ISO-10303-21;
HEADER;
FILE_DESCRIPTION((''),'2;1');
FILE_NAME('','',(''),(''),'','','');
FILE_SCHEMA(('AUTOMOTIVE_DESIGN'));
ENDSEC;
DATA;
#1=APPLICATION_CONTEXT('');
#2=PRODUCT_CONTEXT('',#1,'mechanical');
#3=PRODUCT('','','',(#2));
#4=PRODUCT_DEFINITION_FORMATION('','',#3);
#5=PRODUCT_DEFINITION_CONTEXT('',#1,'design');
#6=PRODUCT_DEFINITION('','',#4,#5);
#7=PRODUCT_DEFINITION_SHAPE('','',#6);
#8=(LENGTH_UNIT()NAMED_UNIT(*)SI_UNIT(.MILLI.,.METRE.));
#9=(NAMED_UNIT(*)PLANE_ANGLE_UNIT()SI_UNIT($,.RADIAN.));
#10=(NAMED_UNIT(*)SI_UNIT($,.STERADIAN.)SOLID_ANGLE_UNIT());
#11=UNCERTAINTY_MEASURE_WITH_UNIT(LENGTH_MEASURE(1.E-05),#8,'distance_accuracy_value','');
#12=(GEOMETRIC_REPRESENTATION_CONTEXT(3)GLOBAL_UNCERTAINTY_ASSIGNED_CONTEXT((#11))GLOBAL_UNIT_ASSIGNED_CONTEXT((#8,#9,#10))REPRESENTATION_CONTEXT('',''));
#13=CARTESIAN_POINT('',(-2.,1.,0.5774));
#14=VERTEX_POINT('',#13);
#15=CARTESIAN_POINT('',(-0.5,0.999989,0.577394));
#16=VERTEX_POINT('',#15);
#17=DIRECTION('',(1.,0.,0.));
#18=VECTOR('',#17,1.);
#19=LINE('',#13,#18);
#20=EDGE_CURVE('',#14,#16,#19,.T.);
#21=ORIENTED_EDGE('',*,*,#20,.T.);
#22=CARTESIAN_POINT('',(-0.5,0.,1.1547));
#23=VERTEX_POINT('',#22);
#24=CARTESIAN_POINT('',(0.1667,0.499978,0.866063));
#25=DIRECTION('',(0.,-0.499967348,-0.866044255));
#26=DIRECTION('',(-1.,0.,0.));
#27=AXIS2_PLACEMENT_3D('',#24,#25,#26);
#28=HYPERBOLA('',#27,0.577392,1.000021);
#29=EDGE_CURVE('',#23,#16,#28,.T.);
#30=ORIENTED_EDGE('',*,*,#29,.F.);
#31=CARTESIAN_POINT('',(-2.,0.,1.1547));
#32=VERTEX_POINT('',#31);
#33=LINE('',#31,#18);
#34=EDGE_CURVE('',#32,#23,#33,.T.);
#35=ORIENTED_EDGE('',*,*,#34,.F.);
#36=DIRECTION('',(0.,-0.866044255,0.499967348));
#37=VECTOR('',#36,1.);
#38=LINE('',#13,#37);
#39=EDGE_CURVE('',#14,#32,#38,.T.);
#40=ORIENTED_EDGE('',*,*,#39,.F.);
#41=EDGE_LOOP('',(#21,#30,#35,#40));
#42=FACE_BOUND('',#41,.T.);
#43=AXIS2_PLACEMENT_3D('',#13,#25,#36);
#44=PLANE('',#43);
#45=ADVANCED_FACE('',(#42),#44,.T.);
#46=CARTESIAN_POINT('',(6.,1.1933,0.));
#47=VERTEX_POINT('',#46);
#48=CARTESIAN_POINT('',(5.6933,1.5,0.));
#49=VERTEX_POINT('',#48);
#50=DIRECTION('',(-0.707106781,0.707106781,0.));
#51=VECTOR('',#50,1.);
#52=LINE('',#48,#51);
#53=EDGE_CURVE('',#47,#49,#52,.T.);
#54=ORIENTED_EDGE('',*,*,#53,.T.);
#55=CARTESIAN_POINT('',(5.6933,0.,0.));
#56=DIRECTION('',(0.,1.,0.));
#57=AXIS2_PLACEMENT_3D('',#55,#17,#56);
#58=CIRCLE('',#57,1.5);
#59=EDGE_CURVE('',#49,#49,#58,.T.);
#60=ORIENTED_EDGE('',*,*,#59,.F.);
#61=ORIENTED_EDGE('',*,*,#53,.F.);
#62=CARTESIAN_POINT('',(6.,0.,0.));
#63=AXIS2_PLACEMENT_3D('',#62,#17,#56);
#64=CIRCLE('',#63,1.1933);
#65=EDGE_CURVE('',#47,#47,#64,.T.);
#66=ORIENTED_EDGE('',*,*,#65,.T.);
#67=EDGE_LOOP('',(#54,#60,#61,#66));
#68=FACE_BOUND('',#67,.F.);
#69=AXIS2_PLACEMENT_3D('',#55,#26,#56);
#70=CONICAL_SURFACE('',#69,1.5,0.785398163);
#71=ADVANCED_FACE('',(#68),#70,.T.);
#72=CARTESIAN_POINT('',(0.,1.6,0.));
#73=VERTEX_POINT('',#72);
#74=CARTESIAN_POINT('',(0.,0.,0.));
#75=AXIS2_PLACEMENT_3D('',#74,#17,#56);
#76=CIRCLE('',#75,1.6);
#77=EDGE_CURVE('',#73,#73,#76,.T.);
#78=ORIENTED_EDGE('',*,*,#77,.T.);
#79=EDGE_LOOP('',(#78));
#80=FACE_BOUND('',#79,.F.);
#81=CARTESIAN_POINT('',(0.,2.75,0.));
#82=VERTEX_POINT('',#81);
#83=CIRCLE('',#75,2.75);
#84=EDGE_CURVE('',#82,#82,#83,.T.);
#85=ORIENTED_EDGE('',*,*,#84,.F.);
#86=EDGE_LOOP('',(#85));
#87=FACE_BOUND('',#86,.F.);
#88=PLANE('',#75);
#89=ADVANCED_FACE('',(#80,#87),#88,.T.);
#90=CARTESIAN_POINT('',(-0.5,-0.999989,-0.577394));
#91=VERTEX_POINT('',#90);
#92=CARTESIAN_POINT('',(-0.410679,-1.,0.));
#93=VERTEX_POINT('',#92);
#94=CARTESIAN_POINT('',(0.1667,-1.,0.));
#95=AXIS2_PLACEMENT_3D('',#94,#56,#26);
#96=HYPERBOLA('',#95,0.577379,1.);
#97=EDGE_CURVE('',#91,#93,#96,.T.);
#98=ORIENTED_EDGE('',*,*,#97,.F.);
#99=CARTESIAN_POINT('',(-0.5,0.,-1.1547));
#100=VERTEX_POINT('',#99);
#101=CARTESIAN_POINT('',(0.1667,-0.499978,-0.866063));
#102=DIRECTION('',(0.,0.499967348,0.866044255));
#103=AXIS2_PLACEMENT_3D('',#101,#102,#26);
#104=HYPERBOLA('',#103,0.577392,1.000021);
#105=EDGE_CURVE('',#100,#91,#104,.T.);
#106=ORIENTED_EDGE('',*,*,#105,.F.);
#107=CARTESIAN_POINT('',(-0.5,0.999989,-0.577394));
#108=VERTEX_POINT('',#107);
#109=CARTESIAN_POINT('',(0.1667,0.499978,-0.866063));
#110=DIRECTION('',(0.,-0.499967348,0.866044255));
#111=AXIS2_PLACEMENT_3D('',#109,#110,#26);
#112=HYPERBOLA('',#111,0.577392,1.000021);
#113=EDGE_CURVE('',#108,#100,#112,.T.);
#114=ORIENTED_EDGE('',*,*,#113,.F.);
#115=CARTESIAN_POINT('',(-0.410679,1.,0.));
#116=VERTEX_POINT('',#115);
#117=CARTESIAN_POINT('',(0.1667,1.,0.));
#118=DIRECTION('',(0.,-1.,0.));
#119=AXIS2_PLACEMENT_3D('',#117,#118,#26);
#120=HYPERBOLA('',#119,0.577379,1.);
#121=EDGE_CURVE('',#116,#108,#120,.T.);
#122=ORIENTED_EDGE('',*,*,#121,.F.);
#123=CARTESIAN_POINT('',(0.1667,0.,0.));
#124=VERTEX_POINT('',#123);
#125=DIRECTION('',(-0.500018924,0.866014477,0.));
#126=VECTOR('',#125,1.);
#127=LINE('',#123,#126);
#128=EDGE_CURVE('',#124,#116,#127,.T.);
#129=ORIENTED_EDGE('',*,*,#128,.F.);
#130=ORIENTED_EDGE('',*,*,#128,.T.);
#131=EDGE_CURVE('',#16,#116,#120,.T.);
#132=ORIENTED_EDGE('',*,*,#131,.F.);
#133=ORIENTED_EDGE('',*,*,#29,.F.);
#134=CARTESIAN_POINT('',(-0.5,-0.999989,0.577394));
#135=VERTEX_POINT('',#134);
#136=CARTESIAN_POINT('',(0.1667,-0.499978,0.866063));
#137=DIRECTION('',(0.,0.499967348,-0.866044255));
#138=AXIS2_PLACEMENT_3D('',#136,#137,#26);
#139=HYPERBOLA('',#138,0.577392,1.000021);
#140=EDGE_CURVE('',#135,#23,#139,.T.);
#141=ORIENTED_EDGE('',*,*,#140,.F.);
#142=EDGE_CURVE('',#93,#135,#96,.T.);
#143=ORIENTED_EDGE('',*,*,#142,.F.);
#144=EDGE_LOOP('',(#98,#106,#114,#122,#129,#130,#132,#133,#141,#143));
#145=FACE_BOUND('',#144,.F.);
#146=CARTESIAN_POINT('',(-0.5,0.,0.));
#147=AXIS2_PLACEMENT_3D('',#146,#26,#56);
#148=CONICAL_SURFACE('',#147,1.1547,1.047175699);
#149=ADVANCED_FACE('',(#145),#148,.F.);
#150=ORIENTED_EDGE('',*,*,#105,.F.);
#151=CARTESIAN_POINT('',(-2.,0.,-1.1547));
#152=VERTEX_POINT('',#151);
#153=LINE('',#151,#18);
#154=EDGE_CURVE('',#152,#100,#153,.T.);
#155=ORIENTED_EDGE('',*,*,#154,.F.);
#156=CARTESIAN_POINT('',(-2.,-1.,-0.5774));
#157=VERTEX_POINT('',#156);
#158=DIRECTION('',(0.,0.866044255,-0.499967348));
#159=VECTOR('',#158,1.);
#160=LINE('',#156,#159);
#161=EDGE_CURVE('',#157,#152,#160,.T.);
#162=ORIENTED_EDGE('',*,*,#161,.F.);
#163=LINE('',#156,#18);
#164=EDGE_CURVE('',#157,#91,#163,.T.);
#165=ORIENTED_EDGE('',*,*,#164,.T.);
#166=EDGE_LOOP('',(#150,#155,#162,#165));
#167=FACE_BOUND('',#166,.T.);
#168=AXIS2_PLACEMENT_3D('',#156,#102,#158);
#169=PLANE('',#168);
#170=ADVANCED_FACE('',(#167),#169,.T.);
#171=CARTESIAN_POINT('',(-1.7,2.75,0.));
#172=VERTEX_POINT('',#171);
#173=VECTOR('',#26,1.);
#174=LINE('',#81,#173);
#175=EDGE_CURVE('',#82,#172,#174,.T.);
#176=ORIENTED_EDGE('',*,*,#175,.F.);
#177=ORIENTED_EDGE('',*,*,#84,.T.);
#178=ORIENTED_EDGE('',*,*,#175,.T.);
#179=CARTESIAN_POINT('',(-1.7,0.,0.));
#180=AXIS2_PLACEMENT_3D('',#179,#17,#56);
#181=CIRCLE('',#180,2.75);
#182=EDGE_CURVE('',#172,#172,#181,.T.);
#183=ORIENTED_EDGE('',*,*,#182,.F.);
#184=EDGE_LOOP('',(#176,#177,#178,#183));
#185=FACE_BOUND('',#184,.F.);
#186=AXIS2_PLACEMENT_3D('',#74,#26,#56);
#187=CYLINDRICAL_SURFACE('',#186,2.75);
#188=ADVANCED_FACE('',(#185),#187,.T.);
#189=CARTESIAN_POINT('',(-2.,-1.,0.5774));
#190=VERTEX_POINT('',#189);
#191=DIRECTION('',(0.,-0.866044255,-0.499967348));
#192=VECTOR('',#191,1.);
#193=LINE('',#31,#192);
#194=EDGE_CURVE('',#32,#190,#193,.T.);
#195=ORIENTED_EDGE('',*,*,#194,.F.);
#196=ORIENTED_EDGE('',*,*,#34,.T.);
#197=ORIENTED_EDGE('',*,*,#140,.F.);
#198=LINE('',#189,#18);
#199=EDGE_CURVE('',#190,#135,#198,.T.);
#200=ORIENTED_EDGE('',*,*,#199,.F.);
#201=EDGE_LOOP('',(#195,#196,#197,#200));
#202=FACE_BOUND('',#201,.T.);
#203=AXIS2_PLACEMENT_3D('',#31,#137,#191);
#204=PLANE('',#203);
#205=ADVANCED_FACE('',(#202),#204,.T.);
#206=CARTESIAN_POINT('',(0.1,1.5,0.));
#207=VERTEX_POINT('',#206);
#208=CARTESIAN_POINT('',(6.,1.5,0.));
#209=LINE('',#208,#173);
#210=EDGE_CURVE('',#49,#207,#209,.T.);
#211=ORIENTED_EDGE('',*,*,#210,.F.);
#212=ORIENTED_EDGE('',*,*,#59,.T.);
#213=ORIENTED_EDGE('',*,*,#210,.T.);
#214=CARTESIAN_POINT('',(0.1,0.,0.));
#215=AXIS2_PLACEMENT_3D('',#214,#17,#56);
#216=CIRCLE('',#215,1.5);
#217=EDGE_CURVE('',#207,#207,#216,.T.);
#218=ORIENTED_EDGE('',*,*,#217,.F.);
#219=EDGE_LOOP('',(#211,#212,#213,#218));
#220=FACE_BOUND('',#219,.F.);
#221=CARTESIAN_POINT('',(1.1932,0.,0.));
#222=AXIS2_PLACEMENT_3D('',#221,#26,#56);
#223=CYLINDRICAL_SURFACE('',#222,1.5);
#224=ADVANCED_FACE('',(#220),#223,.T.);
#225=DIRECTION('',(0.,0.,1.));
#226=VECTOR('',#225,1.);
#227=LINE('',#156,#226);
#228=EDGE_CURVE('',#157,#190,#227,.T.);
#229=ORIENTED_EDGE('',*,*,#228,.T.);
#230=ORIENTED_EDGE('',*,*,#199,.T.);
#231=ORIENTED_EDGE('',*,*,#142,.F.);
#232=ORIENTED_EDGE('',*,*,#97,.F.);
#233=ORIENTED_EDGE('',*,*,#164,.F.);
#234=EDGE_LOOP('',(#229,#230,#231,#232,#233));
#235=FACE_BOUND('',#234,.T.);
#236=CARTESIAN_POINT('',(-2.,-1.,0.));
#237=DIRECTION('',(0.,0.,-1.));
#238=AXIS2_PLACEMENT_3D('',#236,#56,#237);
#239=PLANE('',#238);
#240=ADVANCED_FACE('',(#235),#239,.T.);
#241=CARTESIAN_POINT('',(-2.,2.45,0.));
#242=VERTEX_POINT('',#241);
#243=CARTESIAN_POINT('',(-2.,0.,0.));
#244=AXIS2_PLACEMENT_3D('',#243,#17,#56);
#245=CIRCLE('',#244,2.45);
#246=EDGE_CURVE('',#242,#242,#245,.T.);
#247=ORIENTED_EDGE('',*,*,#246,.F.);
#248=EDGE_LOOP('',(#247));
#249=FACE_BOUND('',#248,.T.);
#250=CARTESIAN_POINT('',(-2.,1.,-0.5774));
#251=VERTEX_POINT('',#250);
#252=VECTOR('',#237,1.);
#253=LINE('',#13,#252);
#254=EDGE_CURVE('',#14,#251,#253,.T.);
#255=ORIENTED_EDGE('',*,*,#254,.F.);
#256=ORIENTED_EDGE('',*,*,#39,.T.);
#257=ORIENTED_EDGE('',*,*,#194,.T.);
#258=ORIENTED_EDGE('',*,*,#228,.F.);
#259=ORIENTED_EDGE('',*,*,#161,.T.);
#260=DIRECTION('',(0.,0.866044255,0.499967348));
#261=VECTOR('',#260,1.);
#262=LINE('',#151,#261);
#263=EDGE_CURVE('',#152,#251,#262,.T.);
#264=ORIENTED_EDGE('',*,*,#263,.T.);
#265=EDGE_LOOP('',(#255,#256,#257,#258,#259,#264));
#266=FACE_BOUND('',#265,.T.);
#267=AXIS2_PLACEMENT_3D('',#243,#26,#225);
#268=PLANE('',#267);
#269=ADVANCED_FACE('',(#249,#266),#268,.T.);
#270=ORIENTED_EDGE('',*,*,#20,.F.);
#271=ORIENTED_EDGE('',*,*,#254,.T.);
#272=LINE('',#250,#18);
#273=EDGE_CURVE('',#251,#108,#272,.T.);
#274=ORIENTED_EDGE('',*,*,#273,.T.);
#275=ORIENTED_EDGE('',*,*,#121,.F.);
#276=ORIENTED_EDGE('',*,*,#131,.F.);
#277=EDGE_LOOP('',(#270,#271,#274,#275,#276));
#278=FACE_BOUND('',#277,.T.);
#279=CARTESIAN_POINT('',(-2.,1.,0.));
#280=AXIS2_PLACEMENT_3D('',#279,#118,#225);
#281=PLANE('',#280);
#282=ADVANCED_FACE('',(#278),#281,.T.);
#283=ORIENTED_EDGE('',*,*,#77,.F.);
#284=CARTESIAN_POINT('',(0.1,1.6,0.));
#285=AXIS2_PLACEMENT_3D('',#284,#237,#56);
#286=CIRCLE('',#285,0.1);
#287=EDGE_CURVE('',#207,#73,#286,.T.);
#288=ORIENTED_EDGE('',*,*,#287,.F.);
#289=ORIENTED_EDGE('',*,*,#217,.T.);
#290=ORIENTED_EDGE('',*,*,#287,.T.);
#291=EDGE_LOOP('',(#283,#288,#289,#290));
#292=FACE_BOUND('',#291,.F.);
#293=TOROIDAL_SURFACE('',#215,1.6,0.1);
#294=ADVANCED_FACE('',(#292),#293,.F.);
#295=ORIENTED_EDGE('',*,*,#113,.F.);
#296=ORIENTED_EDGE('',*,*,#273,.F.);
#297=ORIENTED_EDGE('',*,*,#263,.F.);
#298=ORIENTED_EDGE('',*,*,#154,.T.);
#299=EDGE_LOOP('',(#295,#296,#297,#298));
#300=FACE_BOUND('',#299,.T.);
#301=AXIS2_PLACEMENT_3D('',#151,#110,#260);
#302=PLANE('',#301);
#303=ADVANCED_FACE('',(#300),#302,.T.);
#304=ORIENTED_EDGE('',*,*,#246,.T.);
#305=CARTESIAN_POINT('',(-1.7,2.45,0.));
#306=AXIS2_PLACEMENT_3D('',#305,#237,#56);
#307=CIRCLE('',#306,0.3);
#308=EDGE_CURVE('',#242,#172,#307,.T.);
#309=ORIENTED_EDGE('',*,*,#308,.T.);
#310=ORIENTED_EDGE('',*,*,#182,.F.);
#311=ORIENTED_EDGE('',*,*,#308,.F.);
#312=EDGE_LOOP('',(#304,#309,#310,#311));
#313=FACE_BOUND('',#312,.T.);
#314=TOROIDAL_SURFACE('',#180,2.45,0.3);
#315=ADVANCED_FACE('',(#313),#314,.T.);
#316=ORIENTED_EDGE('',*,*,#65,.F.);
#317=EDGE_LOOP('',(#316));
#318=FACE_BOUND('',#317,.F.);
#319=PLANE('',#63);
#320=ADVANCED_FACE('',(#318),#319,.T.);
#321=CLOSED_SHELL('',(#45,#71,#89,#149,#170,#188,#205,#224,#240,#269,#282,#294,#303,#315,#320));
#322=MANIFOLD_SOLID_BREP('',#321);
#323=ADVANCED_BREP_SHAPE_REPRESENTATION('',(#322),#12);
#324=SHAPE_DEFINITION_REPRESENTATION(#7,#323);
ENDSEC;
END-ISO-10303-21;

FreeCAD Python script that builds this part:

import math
import FreeCAD as App
import Part
import Sketcher

V = App.Vector


def edges_at(feature, points):
    """Names of the edges that pass closest to the given points."""
    edges = feature.Shape.Edges
    near = lambda p: min(range(len(edges)), key=lambda i: edges[i].distToShape(Part.Vertex(*p))[0])
    return sorted({f"Edge{near(p) + 1}" for p in points})


def add_polygon(sketch, points):
    """Adds a closed chain of lines whose ends are joined by coincident constraints."""
    first, n = sketch.GeometryCount, len(points)
    for a, b in zip(points, points[1:] + points[:1]):
        sketch.addGeometry(Part.LineSegment(App.Vector(*a, 0), App.Vector(*b, 0)), False)
    for i in range(n):
        sketch.addConstraint(Sketcher.Constraint("Coincident", first + i, 2, first + (i + 1) % n, 1))

doc = App.newDocument("Part")
body = doc.addObject("PartDesign::Body", "Body")

sketch1 = body.newObject("Sketcher::SketchObject", "Sketch")
sketch1.AttachmentSupport = (doc.getObject("XY_Plane"), [""])
sketch1.MapMode = "FlatFace"
add_polygon(sketch1, [(0.2, 0), (6, 0), (6, 1.5), (0, 1.5), (0, 2.8), (-2, 2.8), (-2, 1.2), (-0.5, 1.2)])
sketch1.addConstraint([
    Sketcher.Constraint("Horizontal", 0),
    Sketcher.Constraint("Vertical", 1),
    Sketcher.Constraint("Horizontal", 2),
    Sketcher.Constraint("Vertical", 3),
    Sketcher.Constraint("Horizontal", 4),
    Sketcher.Constraint("Vertical", 5),
    Sketcher.Constraint("Horizontal", 6),
    Sketcher.Constraint("PointOnObject", 0, 2, -1),
    Sketcher.Constraint("PointOnObject", 2, 2, -2),
    Sketcher.Constraint("Equal", 6, 1),
    Sketcher.Constraint("DistanceX", 2, 2, 2, 1, 6.0),
    Sketcher.Constraint("DistanceX", 4, 2, 4, 1, 2.0),
    Sketcher.Constraint("DistanceX", 6, 1, 6, 2, 1.5),
    Sketcher.Constraint("DistanceY", 3, 1, 3, 2, 1.25),
    Sketcher.Constraint("DistanceX", 0, 1, 0, 2, 5.8333),
    Sketcher.Constraint("DistanceY", 5, 2, 5, 1, 1.5953),
])
revolution = body.newObject("PartDesign::Revolution", "Revolution")
revolution.Profile = sketch1
revolution.ReferenceAxis = (sketch1, ["H_Axis"])
revolution.Angle = 360

sketch2 = body.newObject("Sketcher::SketchObject", "Sketch001")
sketch2.AttachmentSupport = (doc.getObject("YZ_Plane"), [""])
sketch2.MapMode = "FlatFace"
sketch2.AttachmentOffset = App.Placement(V(0, 0, -2), App.Rotation())
sketch2.addGeometry([
    Part.LineSegment(V(1, 0.6, 0), V(0, 1.2, 0)),
    Part.ArcOfCircle(Part.Circle(V(0, 0, 0), V(0, 0, 1), 1.2), math.radians(30), math.radians(90)),
    Part.ArcOfCircle(Part.Circle(V(0, 0, 0), V(0, 0, 1), 1.2), math.radians(90), math.radians(150)),
    Part.LineSegment(V(0, 1.2, 0), V(-1, 0.6, 0)),
    Part.ArcOfCircle(Part.Circle(V(0, 0, 0), V(0, 0, 1), 1.2), math.radians(-30), math.radians(30)),
    Part.LineSegment(V(1, 0.6, 0), V(1, -0.6, 0)),
    Part.LineSegment(V(-1, 0.6, 0), V(-1, -0.6, 0)),
    Part.ArcOfCircle(Part.Circle(V(0, 0, 0), V(0, 0, 1), 1.2), math.radians(150), math.radians(210)),
    Part.LineSegment(V(-1, -0.6, 0), V(0, -1.2, 0)),
    Part.ArcOfCircle(Part.Circle(V(0, 0, 0), V(0, 0, 1), 1.2), math.radians(-150), math.radians(-90)),
    Part.ArcOfCircle(Part.Circle(V(0, 0, 0), V(0, 0, 1), 1.2), math.radians(-90), math.radians(-30)),
    Part.LineSegment(V(0, -1.2, 0), V(1, -0.6, 0)),
], False)
sketch2.addConstraint([
    Sketcher.Constraint("Coincident", 0, 1, 1, 1),
    Sketcher.Constraint("Coincident", 1, 2, 0, 2),
    Sketcher.Constraint("Coincident", 2, 1, 3, 1),
    Sketcher.Constraint("Coincident", 3, 2, 2, 2),
    Sketcher.Constraint("Coincident", 4, 1, 5, 2),
    Sketcher.Constraint("Coincident", 5, 1, 4, 2),
    Sketcher.Constraint("Coincident", 6, 1, 7, 1),
    Sketcher.Constraint("Coincident", 7, 2, 6, 2),
    Sketcher.Constraint("Coincident", 8, 1, 9, 1),
    Sketcher.Constraint("Coincident", 9, 2, 8, 2),
    Sketcher.Constraint("Coincident", 10, 1, 11, 1),
    Sketcher.Constraint("Coincident", 11, 2, 10, 2),
    Sketcher.Constraint("Vertical", 5),
    Sketcher.Constraint("Vertical", 6),
    Sketcher.Constraint("Coincident", 1, 3, -1, 1),
    Sketcher.Constraint("Coincident", 2, 3, -1, 1),
    Sketcher.Constraint("Coincident", 4, 3, -1, 1),
    Sketcher.Constraint("Coincident", 7, 3, -1, 1),
    Sketcher.Constraint("Coincident", 9, 3, -1, 1),
    Sketcher.Constraint("Coincident", 10, 3, -1, 1),
    Sketcher.Constraint("Coincident", 2, 1, 1, 2),
    Sketcher.Constraint("Coincident", 5, 1, 0, 1),
    Sketcher.Constraint("Coincident", 6, 1, 3, 2),
    Sketcher.Constraint("Coincident", 8, 1, 7, 2),
    Sketcher.Constraint("Coincident", 10, 1, 9, 2),
    Sketcher.Constraint("PointOnObject", 1, 2, -2),
    Sketcher.Constraint("PointOnObject", 9, 2, -2),
    Sketcher.Constraint("Parallel", 0, 8),
    Sketcher.Constraint("Parallel", 3, 11),
    Sketcher.Constraint("DistanceX", -1, 1, 0, 1, 1.0),
    Sketcher.Constraint("Radius", 1, 1.1547),
])
pad1 = body.newObject("PartDesign::Pad", "Pad")
pad1.Profile = sketch2
pad1.Type = "UpToFirst"
doc.recompute()

fillet = body.newObject("PartDesign::Fillet", "Fillet")
fillet.Base = (pad1, edges_at(pad1, [(-2, -2.75, 0)]))
fillet.Radius = 0.3
doc.recompute()

chamfer = body.newObject("PartDesign::Chamfer", "Chamfer")
chamfer.Base = (fillet, edges_at(fillet, [(6, -1.5, 0)]))
chamfer.ChamferType = "Two distances"
chamfer.Size = 0.3067
chamfer.Size2 = 0.3067
doc.recompute()

fillet2 = body.newObject("PartDesign::Fillet", "Fillet001")
fillet2.Base = (chamfer, edges_at(chamfer, [(0, -1.5, 0)]))
fillet2.Radius = 0.1

doc.recompute()
